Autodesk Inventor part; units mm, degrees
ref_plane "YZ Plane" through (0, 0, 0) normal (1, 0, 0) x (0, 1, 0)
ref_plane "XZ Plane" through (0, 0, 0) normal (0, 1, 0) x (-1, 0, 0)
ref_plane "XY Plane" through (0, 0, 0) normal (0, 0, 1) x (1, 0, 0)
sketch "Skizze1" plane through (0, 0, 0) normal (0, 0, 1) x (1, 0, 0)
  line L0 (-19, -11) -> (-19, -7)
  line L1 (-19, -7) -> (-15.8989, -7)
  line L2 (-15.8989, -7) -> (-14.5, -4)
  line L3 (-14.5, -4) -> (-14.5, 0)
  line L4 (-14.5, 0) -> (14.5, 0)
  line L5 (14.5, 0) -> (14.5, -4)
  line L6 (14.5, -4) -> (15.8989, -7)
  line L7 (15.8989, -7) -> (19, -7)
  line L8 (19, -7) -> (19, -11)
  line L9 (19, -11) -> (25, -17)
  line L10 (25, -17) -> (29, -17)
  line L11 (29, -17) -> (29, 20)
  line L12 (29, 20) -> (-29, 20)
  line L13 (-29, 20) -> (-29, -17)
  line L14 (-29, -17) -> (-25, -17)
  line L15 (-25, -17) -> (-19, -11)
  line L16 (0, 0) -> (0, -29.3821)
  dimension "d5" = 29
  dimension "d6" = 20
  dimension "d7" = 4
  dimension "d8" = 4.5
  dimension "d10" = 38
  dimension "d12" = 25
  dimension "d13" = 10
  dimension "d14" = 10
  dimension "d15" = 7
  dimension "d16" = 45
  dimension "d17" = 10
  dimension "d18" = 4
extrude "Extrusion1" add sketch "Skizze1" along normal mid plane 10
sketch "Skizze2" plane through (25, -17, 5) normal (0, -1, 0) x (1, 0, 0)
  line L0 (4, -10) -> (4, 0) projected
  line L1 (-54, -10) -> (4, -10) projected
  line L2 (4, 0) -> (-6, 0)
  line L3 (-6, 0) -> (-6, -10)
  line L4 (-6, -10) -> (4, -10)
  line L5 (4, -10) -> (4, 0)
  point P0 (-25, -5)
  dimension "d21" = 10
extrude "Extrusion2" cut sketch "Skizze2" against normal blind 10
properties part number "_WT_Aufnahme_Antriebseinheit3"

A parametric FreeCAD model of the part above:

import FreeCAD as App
import Part
import Sketcher
Q = App.Units.Quantity


def add_polygon(sketch, points):
    """Adds a closed chain of lines whose ends are joined by coincident constraints."""
    first, n = sketch.GeometryCount, len(points)
    for a, b in zip(points, points[1:] + points[:1]):
        sketch.addGeometry(Part.LineSegment(App.Vector(*a, 0), App.Vector(*b, 0)), False)
    for i in range(n):
        sketch.addConstraint(Sketcher.Constraint("Coincident", first + i, 2, first + (i + 1) % n, 1))

doc = App.newDocument("Part")
body = doc.addObject("PartDesign::Body", "Body")

# Sketch on XY plane
sketch1 = doc.addObject("Sketcher::SketchObject", "Sketch")
body.addObject(sketch1)
sketch1.AttachmentSupport = (doc.XY_Plane, [""])
sketch1.MapMode = "FlatFace"
add_polygon(sketch1, [(-25, -17), (-19, -11), (-19, -7), (-15.8989, -7), (-14.5, -4), (-14.5, 0), (14.5, 0), (14.5, -4), (15.8989, -7), (19, -7), (19, -11), (25, -17), (29, -17), (29, 20), (-29, 20), (-29, -17)])  # lines 0-15
sketch1.addConstraint(Sketcher.Constraint("Vertical", 1))
sketch1.addConstraint(Sketcher.Constraint("Horizontal", 2))
sketch1.addConstraint(Sketcher.Constraint("Vertical", 4))
sketch1.addConstraint(Sketcher.Constraint("Horizontal", 5))
sketch1.addConstraint(Sketcher.Constraint("Vertical", 6))
sketch1.addConstraint(Sketcher.Constraint("Horizontal", 8))
sketch1.addConstraint(Sketcher.Constraint("Vertical", 9))
sketch1.addConstraint(Sketcher.Constraint("Horizontal", 11))
sketch1.addConstraint(Sketcher.Constraint("Vertical", 12))
sketch1.addConstraint(Sketcher.Constraint("Horizontal", 13))
sketch1.addConstraint(Sketcher.Constraint("Vertical", 14))
sketch1.addConstraint(Sketcher.Constraint("Horizontal", 15))
sketch1.addConstraint(Sketcher.Constraint("Symmetric", 4, 2, 5, 2, -1, 1))
sketch1.addConstraint(Sketcher.Constraint("Symmetric", 2, 2, 7, 2, -2))
sketch1.addConstraint(Sketcher.Constraint("Symmetric", 0, 2, 9, 2, -2))
sketch1.addConstraint(Sketcher.Constraint("Symmetric", 11, 2, 14, 2, -2))
sketch1.addConstraint(Sketcher.Constraint("Perpendicular", 0, 10))
sketch1.addConstraint(Sketcher.Constraint("Horizontal", 3, 2, 6, 2))
sketch1.addConstraint(Sketcher.Constraint("Equal", 11, 15))
sketch1.addConstraint(Sketcher.Constraint("Equal", 15, 1))
sketch1.addConstraint(Sketcher.Constraint("Equal", 1, 4))
sketch1.addConstraint(Sketcher.Constraint("DistanceX", 5, 1, 5, 2, 29.0))
sketch1.addConstraint(Sketcher.Constraint("DistanceX", 11, 1, 11, 2, 4.0))
sketch1.addConstraint(Sketcher.Constraint("DistanceY", 1, 2, -1, 1, 7.0))
sketch1.addConstraint(Sketcher.Constraint("DistanceX", -1, 1, 10, 2, 25.0))
sketch1.addConstraint(Sketcher.Constraint("DistanceY", -1, 1, 12, 2, 20.0))
sketch1.addConstraint(Sketcher.Constraint("DistanceY", 10, 2, 8, 2, 10.0))
sketch1.addConstraint(Sketcher.Constraint("Angle", 3, Q("65.0004 deg")))
pad1 = doc.addObject("PartDesign::Pad", "Pad")
body.addObject(pad1)
pad1.Profile = sketch1
pad1.Length = 10
pad1.Midplane = True

# Sketch on XZ plane
sketch2 = doc.addObject("Sketcher::SketchObject", "Sketch001")
body.addObject(sketch2)
sketch2.AttachmentSupport = (doc.XZ_Plane, [""])
sketch2.MapMode = "FlatFace"
sketch2.AttachmentOffset = App.Placement(App.Vector(0, 0, 17), App.Rotation())
add_polygon(sketch2, [(19, -5), (29, -5), (29, 5), (19, 5)])  # lines 0-3
sketch2.addConstraint(Sketcher.Constraint("Horizontal", 0))
sketch2.addConstraint(Sketcher.Constraint("Vertical", 1))
sketch2.addConstraint(Sketcher.Constraint("Horizontal", 2))
sketch2.addConstraint(Sketcher.Constraint("Vertical", 3))
sketch2.addConstraint(Sketcher.Constraint("Equal", 2, 1))
sketch2.addConstraint(Sketcher.Constraint("DistanceX", 0, 1, 0, 2, 10.0))
sketch2.addConstraint(Sketcher.Constraint("DistanceX", -1, 1, 0, 2, 29.0))
sketch2.addConstraint(Sketcher.Constraint("DistanceY", 0, 2, -1, 1, 5.0))
pocket1 = doc.addObject("PartDesign::Pocket", "Pocket")
body.addObject(pocket1)
pocket1.Profile = sketch2
pocket1.Length = 10

doc.recompute()
